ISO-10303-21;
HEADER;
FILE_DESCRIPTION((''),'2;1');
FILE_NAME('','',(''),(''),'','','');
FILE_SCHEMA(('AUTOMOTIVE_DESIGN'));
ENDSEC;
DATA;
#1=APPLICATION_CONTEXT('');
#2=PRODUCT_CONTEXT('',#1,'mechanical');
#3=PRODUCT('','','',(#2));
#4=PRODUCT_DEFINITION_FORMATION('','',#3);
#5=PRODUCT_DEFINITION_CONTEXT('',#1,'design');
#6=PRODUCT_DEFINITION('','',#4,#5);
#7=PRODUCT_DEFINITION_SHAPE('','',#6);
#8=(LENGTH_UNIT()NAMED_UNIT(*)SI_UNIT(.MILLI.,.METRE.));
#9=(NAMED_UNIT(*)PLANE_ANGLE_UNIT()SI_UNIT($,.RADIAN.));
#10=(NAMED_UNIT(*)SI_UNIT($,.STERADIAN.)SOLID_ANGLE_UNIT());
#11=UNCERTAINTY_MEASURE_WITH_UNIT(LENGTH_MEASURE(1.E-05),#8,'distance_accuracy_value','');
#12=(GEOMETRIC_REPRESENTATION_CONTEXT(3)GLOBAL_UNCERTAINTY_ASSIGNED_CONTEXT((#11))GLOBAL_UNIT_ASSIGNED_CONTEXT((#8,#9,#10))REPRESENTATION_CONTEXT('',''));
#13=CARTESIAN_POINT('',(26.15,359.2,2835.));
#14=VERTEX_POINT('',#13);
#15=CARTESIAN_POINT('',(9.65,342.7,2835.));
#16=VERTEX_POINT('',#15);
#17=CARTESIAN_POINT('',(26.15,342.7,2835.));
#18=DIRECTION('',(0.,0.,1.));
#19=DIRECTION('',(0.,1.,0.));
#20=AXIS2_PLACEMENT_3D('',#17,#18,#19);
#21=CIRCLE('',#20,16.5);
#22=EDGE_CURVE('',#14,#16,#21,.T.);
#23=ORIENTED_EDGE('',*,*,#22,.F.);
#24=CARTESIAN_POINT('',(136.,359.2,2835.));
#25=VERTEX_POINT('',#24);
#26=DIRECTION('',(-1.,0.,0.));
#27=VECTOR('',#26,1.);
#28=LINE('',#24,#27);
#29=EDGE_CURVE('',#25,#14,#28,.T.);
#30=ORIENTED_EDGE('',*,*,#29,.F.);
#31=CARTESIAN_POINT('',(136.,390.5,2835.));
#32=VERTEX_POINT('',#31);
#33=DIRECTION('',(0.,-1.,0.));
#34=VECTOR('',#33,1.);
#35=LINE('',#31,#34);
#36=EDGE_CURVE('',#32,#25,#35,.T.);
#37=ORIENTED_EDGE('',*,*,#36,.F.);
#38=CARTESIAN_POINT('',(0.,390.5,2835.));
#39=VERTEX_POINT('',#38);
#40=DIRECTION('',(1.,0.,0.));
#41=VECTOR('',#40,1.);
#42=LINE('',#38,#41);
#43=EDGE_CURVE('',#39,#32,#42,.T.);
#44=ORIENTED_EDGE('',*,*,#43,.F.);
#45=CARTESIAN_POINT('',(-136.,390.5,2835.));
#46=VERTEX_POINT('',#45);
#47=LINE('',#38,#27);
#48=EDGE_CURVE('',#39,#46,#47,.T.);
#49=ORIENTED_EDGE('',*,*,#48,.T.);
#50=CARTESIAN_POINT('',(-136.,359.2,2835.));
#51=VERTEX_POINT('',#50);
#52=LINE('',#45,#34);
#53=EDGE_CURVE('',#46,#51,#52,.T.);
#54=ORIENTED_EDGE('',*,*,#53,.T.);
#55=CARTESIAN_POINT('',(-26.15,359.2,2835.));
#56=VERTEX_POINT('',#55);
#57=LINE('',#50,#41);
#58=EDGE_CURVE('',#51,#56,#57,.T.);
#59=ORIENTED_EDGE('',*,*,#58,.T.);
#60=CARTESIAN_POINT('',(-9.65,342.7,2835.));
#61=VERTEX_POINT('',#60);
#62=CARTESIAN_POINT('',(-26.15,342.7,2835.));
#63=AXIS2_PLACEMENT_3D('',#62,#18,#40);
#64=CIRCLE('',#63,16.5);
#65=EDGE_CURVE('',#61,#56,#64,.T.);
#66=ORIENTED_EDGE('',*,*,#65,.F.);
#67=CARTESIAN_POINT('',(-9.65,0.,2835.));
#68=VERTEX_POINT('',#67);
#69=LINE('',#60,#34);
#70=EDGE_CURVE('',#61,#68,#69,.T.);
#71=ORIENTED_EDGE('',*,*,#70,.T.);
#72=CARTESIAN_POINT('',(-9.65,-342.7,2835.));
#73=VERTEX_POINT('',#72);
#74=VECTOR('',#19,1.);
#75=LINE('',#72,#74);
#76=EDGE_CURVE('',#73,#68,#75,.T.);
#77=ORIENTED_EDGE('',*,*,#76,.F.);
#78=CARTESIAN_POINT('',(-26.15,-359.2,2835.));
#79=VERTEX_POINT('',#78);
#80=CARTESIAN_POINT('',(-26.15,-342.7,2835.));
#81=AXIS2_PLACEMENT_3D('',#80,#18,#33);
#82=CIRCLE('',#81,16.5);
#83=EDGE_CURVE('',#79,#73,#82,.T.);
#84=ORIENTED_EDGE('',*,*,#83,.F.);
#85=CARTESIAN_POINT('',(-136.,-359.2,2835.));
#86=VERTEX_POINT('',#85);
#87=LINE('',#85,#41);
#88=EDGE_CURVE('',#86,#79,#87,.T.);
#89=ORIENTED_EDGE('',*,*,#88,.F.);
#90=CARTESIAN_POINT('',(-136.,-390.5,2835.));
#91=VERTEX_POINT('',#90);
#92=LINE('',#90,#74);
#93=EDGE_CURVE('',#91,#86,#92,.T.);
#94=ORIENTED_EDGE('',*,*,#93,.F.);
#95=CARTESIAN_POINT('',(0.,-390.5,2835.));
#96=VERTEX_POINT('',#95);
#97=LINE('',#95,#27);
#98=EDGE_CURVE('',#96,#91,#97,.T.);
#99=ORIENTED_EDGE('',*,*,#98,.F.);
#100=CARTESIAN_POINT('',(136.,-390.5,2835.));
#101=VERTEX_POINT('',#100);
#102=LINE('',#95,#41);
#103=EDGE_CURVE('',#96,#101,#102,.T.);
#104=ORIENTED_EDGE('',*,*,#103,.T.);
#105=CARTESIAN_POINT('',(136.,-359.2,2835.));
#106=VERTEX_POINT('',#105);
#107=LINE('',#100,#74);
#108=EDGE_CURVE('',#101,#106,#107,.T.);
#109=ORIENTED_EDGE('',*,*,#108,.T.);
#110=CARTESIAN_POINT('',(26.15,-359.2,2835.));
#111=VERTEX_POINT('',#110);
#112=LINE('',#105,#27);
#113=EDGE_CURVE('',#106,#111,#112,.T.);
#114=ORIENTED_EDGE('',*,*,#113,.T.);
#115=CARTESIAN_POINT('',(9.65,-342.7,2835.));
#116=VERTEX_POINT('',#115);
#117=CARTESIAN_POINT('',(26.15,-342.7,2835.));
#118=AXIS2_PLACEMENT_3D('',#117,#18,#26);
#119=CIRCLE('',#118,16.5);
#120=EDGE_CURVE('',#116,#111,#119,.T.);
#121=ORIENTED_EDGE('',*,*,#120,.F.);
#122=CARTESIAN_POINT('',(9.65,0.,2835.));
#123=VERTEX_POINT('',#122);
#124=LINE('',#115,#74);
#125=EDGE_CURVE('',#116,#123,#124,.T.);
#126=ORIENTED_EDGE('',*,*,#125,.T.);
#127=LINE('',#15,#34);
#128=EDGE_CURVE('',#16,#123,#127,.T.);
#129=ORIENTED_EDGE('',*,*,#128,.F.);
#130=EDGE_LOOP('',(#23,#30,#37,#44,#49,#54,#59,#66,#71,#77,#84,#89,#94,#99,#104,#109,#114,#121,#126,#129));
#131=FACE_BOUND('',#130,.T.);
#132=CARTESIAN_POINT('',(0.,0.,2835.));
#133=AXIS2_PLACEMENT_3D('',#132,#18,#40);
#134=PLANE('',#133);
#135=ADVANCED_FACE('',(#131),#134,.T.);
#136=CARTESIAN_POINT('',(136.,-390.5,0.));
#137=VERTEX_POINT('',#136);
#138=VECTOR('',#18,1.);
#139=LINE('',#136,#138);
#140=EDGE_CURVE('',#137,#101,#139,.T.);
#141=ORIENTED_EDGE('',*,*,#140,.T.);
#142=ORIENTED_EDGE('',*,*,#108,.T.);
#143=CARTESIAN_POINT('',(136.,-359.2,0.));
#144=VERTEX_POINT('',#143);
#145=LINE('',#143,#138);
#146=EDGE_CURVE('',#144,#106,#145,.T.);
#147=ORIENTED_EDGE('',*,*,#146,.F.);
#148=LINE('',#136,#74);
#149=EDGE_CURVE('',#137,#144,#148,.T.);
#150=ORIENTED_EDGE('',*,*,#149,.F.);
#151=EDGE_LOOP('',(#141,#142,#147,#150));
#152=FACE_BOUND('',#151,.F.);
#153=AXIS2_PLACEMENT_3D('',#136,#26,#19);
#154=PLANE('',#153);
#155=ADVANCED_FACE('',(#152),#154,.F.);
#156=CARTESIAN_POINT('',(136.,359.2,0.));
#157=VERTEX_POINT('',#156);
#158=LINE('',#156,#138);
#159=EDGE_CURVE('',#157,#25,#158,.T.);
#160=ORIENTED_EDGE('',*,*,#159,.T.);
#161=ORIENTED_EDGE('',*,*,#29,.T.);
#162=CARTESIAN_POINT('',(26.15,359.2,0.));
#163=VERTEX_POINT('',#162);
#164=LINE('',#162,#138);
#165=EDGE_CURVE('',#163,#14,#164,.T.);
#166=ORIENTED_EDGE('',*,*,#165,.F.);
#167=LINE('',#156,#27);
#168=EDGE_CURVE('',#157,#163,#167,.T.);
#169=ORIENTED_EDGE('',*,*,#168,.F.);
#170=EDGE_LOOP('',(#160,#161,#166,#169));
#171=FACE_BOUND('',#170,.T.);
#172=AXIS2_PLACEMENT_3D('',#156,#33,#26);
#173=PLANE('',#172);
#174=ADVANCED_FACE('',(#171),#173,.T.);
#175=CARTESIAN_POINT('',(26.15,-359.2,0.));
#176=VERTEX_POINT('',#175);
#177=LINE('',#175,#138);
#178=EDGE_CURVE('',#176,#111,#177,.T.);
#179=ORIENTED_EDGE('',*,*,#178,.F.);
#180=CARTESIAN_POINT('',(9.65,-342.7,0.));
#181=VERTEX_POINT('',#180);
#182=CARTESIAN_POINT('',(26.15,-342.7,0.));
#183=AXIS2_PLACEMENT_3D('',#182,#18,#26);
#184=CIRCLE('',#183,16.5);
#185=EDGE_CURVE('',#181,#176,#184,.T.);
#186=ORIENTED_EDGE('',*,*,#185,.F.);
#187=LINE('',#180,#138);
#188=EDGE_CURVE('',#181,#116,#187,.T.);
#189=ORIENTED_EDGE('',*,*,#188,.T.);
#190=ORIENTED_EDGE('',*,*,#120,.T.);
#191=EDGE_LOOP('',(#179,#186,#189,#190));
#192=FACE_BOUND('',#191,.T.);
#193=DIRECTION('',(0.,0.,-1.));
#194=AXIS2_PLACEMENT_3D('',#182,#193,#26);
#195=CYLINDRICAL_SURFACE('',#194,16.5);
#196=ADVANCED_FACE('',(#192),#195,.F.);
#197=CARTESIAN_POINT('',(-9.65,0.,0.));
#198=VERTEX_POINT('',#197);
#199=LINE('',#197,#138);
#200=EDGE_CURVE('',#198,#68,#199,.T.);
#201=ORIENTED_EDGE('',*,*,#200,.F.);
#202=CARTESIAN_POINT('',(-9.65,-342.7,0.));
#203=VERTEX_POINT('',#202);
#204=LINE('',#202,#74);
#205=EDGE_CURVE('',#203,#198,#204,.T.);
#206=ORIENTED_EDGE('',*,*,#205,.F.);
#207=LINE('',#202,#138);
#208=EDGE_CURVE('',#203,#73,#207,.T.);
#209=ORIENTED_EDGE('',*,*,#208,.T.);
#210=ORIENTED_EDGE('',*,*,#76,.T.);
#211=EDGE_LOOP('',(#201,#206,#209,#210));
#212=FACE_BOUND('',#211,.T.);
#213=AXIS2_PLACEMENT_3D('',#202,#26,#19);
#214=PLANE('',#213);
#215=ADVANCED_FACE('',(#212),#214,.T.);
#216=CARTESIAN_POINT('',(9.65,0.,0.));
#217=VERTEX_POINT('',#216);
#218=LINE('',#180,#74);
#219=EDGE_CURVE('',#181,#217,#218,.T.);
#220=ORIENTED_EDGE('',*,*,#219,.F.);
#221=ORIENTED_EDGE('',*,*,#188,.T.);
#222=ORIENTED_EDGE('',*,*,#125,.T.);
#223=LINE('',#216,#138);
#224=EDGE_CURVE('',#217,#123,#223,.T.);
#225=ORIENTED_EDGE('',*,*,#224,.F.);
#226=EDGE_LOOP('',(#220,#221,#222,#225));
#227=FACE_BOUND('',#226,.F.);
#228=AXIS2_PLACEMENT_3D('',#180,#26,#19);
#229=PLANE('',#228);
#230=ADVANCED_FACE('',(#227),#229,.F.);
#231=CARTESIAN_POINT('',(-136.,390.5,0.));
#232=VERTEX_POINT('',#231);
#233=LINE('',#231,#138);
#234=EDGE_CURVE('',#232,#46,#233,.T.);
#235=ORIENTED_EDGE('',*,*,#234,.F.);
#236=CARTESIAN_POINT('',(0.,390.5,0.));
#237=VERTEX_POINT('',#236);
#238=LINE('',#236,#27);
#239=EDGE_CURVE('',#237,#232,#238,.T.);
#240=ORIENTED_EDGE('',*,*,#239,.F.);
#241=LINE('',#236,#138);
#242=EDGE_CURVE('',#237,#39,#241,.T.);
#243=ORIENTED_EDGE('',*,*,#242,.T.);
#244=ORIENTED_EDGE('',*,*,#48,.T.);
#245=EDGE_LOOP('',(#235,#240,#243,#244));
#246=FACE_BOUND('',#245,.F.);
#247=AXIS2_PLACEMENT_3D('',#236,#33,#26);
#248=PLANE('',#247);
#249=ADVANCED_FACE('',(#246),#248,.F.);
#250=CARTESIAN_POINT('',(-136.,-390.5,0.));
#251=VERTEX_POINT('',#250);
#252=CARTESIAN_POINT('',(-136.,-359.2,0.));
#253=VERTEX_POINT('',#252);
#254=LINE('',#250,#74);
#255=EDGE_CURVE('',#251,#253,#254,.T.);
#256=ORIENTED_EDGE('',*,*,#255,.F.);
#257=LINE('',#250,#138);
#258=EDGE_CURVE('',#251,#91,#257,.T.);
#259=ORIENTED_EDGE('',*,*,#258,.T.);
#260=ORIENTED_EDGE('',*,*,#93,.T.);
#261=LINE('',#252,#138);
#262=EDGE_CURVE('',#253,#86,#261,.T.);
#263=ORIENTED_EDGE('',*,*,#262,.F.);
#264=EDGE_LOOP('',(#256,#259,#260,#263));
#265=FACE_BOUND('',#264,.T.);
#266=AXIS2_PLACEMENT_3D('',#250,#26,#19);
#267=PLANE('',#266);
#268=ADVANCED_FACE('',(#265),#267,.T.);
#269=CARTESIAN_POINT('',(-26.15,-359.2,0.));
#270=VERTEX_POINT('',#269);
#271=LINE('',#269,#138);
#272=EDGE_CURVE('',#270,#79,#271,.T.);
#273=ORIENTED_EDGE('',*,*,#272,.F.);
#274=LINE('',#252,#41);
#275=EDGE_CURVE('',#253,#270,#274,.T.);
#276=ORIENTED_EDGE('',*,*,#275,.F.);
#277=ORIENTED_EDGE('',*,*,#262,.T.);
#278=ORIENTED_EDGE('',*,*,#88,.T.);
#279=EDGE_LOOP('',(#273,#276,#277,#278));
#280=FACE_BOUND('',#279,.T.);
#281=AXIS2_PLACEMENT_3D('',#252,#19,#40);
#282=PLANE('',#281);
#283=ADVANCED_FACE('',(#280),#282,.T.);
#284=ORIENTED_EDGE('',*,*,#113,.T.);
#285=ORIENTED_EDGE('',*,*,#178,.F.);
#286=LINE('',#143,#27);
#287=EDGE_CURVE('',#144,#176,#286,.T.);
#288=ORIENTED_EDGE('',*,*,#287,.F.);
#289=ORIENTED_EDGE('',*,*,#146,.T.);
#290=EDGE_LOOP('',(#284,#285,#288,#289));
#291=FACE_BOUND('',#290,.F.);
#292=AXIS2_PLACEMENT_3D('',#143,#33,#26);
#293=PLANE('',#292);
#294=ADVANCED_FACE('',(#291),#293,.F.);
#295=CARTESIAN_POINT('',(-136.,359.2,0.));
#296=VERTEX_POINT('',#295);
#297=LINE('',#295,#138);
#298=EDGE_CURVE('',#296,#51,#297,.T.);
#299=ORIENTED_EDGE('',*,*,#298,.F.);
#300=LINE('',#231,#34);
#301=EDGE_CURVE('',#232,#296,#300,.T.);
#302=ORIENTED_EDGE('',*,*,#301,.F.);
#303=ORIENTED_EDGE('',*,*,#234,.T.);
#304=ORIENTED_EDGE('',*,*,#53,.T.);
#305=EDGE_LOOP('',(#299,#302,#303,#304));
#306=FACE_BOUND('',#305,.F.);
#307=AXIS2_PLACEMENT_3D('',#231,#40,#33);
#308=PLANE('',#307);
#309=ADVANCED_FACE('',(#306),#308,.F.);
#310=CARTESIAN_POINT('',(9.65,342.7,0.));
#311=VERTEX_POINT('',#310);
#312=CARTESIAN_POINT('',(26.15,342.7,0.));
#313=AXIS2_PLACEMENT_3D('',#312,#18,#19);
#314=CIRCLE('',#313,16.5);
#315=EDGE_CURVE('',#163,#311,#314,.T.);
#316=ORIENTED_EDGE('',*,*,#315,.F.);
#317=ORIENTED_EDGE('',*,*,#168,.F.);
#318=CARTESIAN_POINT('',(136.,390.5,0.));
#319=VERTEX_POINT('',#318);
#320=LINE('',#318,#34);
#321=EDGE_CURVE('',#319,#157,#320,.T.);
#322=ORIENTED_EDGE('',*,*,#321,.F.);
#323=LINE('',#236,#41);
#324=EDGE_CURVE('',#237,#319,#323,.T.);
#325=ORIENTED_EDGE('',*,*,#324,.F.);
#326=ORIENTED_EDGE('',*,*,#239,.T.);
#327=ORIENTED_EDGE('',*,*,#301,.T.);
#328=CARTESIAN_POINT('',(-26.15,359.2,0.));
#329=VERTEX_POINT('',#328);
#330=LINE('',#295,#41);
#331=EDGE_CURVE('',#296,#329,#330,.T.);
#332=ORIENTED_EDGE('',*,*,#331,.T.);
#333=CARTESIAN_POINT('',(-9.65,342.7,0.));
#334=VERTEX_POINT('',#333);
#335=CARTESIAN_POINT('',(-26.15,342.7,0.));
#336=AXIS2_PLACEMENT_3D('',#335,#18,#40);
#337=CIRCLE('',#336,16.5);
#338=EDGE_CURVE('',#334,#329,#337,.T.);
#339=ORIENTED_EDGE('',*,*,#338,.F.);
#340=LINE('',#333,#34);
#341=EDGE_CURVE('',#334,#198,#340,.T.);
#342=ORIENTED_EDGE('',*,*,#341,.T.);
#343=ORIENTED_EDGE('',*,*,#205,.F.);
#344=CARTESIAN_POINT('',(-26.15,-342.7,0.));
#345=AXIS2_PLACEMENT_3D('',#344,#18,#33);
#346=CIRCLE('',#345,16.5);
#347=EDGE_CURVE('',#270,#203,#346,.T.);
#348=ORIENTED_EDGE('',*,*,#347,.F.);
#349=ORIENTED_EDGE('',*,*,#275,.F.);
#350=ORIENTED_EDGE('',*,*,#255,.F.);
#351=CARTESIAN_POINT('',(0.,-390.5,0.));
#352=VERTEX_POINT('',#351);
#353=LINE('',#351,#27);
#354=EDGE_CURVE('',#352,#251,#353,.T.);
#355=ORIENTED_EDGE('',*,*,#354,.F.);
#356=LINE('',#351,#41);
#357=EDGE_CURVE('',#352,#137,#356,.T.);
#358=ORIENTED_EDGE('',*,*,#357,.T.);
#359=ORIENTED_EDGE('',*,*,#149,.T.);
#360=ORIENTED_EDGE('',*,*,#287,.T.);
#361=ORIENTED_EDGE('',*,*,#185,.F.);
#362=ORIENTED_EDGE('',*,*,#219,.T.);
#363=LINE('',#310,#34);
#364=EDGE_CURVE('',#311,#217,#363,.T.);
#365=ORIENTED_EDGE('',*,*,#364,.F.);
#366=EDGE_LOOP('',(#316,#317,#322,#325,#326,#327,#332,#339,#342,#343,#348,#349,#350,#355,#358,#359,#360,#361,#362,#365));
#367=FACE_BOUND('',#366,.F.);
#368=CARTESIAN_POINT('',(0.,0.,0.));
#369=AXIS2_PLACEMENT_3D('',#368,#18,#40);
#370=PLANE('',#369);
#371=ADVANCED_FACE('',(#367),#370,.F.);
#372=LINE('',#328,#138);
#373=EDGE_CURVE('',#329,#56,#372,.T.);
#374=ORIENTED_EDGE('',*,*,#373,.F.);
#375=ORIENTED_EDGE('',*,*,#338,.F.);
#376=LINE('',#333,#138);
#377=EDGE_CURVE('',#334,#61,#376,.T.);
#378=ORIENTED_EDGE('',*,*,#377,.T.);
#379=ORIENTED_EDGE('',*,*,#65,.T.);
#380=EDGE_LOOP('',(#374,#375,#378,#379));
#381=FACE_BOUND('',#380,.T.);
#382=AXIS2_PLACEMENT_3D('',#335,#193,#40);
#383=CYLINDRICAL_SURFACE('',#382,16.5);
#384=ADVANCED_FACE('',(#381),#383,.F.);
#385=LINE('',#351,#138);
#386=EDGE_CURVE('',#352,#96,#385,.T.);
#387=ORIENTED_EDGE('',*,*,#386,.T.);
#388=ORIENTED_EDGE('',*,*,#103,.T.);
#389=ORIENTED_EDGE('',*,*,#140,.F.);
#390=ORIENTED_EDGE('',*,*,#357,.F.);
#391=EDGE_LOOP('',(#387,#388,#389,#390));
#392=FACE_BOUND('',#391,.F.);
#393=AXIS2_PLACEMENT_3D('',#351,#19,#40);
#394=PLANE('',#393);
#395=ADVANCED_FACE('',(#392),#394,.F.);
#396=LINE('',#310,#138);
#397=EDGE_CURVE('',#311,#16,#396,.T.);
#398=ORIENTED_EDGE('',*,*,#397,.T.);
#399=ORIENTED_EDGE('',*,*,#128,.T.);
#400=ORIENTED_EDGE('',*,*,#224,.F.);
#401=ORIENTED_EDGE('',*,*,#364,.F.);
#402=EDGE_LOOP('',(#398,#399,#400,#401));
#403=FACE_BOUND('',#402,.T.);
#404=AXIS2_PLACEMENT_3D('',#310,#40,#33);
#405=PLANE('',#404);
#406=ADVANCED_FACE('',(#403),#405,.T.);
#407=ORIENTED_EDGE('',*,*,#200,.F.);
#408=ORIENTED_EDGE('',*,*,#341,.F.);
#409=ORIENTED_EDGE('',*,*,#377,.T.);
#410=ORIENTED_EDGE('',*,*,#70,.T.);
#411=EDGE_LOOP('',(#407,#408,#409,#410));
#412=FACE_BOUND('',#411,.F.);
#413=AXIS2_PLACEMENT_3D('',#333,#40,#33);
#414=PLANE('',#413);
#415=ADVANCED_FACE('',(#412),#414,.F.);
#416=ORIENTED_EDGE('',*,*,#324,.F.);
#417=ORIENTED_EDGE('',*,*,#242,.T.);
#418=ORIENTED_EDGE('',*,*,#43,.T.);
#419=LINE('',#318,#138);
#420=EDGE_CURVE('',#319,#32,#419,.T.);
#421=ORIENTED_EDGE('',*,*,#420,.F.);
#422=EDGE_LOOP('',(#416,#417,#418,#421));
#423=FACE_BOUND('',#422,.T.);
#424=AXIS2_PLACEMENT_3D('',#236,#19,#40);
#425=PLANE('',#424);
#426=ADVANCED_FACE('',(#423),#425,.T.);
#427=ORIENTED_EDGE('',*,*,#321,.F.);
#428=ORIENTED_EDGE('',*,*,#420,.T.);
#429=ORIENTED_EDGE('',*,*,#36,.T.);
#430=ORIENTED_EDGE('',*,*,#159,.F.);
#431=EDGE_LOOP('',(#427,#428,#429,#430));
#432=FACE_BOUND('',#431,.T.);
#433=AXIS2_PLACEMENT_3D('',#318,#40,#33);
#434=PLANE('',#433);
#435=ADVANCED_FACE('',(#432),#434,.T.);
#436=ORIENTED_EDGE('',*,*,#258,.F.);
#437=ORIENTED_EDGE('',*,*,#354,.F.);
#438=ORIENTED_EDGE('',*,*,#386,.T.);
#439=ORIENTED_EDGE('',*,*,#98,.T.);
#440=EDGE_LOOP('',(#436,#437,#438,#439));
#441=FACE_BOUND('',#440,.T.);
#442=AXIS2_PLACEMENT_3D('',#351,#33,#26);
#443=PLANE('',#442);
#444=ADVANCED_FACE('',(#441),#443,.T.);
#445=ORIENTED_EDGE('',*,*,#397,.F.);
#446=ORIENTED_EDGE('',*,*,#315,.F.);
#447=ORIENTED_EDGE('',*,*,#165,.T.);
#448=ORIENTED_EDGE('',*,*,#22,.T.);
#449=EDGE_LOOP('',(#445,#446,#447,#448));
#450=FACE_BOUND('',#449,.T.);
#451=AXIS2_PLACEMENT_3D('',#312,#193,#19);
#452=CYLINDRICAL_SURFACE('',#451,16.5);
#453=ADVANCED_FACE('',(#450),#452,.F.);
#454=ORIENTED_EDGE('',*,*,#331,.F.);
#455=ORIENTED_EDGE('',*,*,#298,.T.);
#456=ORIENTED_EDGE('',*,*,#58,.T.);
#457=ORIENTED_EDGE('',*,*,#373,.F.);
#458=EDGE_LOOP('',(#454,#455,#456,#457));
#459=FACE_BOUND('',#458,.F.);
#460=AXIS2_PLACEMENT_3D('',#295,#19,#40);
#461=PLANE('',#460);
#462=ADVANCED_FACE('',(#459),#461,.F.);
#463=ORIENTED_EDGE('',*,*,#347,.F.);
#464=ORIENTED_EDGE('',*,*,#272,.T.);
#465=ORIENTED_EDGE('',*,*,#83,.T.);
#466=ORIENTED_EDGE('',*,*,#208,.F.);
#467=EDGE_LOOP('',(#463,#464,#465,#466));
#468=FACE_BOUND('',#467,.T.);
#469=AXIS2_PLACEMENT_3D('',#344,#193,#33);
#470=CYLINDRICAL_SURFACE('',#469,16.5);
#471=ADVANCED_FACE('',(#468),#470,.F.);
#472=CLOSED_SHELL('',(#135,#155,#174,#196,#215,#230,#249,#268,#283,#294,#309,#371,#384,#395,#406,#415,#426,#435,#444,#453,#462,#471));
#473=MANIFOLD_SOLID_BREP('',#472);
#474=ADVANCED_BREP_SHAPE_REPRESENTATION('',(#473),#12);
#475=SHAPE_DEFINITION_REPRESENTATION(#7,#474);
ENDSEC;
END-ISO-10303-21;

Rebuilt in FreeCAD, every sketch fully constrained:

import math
import FreeCAD as App
import Part
import Sketcher

doc = App.newDocument("Part")
body = doc.addObject("PartDesign::Body", "Body")

# Sketch on XY plane
sketch1 = body.newObject("Sketcher::SketchObject", "Sketch")
sketch1.AttachmentSupport = (doc.getObject("XY_Plane"), [""])
sketch1.MapMode = "FlatFace"
sketch1.addGeometry([
    Part.LineSegment(App.Vector(-136, -359, 0), App.Vector(-136, -390, 0)),  # 0
    Part.LineSegment(App.Vector(-136, -390, 0), App.Vector(136, -390, 0)),  # 1
    Part.LineSegment(App.Vector(136, -390, 0), App.Vector(136, -359, 0)),  # 2
    Part.LineSegment(App.Vector(136, -359, 0), App.Vector(26, -359, 0)),  # 3
    Part.ArcOfCircle(Part.Circle(App.Vector(26, -343, 0), App.Vector(0, 0, 1), 16), math.radians(180), math.radians(270)),  # 4
    Part.LineSegment(App.Vector(10, -343, 0), App.Vector(10, 343, 0)),  # 5
    Part.ArcOfCircle(Part.Circle(App.Vector(26, 343, 0), App.Vector(0, 0, 1), 16), math.radians(90), math.radians(180)),  # 6
    Part.LineSegment(App.Vector(26, 359, 0), App.Vector(136, 359, 0)),  # 7
    Part.LineSegment(App.Vector(136, 359, 0), App.Vector(136, 390, 0)),  # 8
    Part.LineSegment(App.Vector(136, 390, 0), App.Vector(-136, 390, 0)),  # 9
    Part.LineSegment(App.Vector(-136, 390, 0), App.Vector(-136, 359, 0)),  # 10
    Part.LineSegment(App.Vector(-136, 359, 0), App.Vector(-26, 359, 0)),  # 11
    Part.ArcOfCircle(Part.Circle(App.Vector(-26, 343, 0), App.Vector(0, 0, 1), 16), math.radians(0), math.radians(90)),  # 12
    Part.LineSegment(App.Vector(-10, 343, 0), App.Vector(-10, -343, 0)),  # 13
    Part.ArcOfCircle(Part.Circle(App.Vector(-26, -343, 0), App.Vector(0, 0, 1), 16), math.radians(-90), math.radians(0)),  # 14
    Part.LineSegment(App.Vector(-26, -359, 0), App.Vector(-136, -359, 0)),  # 15
], False)
sketch1.addConstraint([
    Sketcher.Constraint("Coincident", 0, 2, 1, 1),
    Sketcher.Constraint("Coincident", 1, 2, 2, 1),
    Sketcher.Constraint("Coincident", 2, 2, 3, 1),
    Sketcher.Constraint("Tangent", 3, 2, 4, 2),
    Sketcher.Constraint("Tangent", 4, 1, 5, 1),
    Sketcher.Constraint("Tangent", 5, 2, 6, 2),
    Sketcher.Constraint("Tangent", 6, 1, 7, 1),
    Sketcher.Constraint("Coincident", 7, 2, 8, 1),
    Sketcher.Constraint("Coincident", 8, 2, 9, 1),
    Sketcher.Constraint("Coincident", 9, 2, 10, 1),
    Sketcher.Constraint("Coincident", 10, 2, 11, 1),
    Sketcher.Constraint("Tangent", 11, 2, 12, 2),
    Sketcher.Constraint("Tangent", 12, 1, 13, 1),
    Sketcher.Constraint("Tangent", 13, 2, 14, 2),
    Sketcher.Constraint("Tangent", 14, 1, 15, 1),
    Sketcher.Constraint("Coincident", 15, 2, 0, 1),
    Sketcher.Constraint("Vertical", 0),
    Sketcher.Constraint("Horizontal", 1),
    Sketcher.Constraint("Vertical", 2),
    Sketcher.Constraint("Horizontal", 3),
    Sketcher.Constraint("Vertical", 5),
    Sketcher.Constraint("Horizontal", 7),
    Sketcher.Constraint("Vertical", 8),
    Sketcher.Constraint("Horizontal", 9),
    Sketcher.Constraint("Vertical", 10),
    Sketcher.Constraint("Horizontal", 11),
    Sketcher.Constraint("Vertical", 13),
    Sketcher.Constraint("Horizontal", 15),
    Sketcher.Constraint("Equal", 4, 6),
    Sketcher.Constraint("Equal", 6, 12),
    Sketcher.Constraint("Equal", 12, 14),
    Sketcher.Constraint("Symmetric", 4, 3, 12, 3, -1, 1),
    Sketcher.Constraint("Symmetric", 0, 2, 8, 2, -1, 1),
    Sketcher.Constraint("Symmetric", 7, 2, 10, 2, -2),
    Sketcher.Constraint("Symmetric", 2, 2, 15, 2, -2),
    Sketcher.Constraint("Radius", 4, 16.5),
    Sketcher.Constraint("DistanceY", 0, 2, 0, 1, 31.3),
    Sketcher.Constraint("DistanceX", 0, 2, -1, 1, 136.0),
    Sketcher.Constraint("DistanceY", 0, 2, -1, 1, 390.5),
    Sketcher.Constraint("DistanceX", -1, 1, 4, 1, 9.65),
])
pad1 = body.newObject("PartDesign::Pad", "Pad")
pad1.Profile = sketch1
pad1.Length = 2835

doc.recompute()
